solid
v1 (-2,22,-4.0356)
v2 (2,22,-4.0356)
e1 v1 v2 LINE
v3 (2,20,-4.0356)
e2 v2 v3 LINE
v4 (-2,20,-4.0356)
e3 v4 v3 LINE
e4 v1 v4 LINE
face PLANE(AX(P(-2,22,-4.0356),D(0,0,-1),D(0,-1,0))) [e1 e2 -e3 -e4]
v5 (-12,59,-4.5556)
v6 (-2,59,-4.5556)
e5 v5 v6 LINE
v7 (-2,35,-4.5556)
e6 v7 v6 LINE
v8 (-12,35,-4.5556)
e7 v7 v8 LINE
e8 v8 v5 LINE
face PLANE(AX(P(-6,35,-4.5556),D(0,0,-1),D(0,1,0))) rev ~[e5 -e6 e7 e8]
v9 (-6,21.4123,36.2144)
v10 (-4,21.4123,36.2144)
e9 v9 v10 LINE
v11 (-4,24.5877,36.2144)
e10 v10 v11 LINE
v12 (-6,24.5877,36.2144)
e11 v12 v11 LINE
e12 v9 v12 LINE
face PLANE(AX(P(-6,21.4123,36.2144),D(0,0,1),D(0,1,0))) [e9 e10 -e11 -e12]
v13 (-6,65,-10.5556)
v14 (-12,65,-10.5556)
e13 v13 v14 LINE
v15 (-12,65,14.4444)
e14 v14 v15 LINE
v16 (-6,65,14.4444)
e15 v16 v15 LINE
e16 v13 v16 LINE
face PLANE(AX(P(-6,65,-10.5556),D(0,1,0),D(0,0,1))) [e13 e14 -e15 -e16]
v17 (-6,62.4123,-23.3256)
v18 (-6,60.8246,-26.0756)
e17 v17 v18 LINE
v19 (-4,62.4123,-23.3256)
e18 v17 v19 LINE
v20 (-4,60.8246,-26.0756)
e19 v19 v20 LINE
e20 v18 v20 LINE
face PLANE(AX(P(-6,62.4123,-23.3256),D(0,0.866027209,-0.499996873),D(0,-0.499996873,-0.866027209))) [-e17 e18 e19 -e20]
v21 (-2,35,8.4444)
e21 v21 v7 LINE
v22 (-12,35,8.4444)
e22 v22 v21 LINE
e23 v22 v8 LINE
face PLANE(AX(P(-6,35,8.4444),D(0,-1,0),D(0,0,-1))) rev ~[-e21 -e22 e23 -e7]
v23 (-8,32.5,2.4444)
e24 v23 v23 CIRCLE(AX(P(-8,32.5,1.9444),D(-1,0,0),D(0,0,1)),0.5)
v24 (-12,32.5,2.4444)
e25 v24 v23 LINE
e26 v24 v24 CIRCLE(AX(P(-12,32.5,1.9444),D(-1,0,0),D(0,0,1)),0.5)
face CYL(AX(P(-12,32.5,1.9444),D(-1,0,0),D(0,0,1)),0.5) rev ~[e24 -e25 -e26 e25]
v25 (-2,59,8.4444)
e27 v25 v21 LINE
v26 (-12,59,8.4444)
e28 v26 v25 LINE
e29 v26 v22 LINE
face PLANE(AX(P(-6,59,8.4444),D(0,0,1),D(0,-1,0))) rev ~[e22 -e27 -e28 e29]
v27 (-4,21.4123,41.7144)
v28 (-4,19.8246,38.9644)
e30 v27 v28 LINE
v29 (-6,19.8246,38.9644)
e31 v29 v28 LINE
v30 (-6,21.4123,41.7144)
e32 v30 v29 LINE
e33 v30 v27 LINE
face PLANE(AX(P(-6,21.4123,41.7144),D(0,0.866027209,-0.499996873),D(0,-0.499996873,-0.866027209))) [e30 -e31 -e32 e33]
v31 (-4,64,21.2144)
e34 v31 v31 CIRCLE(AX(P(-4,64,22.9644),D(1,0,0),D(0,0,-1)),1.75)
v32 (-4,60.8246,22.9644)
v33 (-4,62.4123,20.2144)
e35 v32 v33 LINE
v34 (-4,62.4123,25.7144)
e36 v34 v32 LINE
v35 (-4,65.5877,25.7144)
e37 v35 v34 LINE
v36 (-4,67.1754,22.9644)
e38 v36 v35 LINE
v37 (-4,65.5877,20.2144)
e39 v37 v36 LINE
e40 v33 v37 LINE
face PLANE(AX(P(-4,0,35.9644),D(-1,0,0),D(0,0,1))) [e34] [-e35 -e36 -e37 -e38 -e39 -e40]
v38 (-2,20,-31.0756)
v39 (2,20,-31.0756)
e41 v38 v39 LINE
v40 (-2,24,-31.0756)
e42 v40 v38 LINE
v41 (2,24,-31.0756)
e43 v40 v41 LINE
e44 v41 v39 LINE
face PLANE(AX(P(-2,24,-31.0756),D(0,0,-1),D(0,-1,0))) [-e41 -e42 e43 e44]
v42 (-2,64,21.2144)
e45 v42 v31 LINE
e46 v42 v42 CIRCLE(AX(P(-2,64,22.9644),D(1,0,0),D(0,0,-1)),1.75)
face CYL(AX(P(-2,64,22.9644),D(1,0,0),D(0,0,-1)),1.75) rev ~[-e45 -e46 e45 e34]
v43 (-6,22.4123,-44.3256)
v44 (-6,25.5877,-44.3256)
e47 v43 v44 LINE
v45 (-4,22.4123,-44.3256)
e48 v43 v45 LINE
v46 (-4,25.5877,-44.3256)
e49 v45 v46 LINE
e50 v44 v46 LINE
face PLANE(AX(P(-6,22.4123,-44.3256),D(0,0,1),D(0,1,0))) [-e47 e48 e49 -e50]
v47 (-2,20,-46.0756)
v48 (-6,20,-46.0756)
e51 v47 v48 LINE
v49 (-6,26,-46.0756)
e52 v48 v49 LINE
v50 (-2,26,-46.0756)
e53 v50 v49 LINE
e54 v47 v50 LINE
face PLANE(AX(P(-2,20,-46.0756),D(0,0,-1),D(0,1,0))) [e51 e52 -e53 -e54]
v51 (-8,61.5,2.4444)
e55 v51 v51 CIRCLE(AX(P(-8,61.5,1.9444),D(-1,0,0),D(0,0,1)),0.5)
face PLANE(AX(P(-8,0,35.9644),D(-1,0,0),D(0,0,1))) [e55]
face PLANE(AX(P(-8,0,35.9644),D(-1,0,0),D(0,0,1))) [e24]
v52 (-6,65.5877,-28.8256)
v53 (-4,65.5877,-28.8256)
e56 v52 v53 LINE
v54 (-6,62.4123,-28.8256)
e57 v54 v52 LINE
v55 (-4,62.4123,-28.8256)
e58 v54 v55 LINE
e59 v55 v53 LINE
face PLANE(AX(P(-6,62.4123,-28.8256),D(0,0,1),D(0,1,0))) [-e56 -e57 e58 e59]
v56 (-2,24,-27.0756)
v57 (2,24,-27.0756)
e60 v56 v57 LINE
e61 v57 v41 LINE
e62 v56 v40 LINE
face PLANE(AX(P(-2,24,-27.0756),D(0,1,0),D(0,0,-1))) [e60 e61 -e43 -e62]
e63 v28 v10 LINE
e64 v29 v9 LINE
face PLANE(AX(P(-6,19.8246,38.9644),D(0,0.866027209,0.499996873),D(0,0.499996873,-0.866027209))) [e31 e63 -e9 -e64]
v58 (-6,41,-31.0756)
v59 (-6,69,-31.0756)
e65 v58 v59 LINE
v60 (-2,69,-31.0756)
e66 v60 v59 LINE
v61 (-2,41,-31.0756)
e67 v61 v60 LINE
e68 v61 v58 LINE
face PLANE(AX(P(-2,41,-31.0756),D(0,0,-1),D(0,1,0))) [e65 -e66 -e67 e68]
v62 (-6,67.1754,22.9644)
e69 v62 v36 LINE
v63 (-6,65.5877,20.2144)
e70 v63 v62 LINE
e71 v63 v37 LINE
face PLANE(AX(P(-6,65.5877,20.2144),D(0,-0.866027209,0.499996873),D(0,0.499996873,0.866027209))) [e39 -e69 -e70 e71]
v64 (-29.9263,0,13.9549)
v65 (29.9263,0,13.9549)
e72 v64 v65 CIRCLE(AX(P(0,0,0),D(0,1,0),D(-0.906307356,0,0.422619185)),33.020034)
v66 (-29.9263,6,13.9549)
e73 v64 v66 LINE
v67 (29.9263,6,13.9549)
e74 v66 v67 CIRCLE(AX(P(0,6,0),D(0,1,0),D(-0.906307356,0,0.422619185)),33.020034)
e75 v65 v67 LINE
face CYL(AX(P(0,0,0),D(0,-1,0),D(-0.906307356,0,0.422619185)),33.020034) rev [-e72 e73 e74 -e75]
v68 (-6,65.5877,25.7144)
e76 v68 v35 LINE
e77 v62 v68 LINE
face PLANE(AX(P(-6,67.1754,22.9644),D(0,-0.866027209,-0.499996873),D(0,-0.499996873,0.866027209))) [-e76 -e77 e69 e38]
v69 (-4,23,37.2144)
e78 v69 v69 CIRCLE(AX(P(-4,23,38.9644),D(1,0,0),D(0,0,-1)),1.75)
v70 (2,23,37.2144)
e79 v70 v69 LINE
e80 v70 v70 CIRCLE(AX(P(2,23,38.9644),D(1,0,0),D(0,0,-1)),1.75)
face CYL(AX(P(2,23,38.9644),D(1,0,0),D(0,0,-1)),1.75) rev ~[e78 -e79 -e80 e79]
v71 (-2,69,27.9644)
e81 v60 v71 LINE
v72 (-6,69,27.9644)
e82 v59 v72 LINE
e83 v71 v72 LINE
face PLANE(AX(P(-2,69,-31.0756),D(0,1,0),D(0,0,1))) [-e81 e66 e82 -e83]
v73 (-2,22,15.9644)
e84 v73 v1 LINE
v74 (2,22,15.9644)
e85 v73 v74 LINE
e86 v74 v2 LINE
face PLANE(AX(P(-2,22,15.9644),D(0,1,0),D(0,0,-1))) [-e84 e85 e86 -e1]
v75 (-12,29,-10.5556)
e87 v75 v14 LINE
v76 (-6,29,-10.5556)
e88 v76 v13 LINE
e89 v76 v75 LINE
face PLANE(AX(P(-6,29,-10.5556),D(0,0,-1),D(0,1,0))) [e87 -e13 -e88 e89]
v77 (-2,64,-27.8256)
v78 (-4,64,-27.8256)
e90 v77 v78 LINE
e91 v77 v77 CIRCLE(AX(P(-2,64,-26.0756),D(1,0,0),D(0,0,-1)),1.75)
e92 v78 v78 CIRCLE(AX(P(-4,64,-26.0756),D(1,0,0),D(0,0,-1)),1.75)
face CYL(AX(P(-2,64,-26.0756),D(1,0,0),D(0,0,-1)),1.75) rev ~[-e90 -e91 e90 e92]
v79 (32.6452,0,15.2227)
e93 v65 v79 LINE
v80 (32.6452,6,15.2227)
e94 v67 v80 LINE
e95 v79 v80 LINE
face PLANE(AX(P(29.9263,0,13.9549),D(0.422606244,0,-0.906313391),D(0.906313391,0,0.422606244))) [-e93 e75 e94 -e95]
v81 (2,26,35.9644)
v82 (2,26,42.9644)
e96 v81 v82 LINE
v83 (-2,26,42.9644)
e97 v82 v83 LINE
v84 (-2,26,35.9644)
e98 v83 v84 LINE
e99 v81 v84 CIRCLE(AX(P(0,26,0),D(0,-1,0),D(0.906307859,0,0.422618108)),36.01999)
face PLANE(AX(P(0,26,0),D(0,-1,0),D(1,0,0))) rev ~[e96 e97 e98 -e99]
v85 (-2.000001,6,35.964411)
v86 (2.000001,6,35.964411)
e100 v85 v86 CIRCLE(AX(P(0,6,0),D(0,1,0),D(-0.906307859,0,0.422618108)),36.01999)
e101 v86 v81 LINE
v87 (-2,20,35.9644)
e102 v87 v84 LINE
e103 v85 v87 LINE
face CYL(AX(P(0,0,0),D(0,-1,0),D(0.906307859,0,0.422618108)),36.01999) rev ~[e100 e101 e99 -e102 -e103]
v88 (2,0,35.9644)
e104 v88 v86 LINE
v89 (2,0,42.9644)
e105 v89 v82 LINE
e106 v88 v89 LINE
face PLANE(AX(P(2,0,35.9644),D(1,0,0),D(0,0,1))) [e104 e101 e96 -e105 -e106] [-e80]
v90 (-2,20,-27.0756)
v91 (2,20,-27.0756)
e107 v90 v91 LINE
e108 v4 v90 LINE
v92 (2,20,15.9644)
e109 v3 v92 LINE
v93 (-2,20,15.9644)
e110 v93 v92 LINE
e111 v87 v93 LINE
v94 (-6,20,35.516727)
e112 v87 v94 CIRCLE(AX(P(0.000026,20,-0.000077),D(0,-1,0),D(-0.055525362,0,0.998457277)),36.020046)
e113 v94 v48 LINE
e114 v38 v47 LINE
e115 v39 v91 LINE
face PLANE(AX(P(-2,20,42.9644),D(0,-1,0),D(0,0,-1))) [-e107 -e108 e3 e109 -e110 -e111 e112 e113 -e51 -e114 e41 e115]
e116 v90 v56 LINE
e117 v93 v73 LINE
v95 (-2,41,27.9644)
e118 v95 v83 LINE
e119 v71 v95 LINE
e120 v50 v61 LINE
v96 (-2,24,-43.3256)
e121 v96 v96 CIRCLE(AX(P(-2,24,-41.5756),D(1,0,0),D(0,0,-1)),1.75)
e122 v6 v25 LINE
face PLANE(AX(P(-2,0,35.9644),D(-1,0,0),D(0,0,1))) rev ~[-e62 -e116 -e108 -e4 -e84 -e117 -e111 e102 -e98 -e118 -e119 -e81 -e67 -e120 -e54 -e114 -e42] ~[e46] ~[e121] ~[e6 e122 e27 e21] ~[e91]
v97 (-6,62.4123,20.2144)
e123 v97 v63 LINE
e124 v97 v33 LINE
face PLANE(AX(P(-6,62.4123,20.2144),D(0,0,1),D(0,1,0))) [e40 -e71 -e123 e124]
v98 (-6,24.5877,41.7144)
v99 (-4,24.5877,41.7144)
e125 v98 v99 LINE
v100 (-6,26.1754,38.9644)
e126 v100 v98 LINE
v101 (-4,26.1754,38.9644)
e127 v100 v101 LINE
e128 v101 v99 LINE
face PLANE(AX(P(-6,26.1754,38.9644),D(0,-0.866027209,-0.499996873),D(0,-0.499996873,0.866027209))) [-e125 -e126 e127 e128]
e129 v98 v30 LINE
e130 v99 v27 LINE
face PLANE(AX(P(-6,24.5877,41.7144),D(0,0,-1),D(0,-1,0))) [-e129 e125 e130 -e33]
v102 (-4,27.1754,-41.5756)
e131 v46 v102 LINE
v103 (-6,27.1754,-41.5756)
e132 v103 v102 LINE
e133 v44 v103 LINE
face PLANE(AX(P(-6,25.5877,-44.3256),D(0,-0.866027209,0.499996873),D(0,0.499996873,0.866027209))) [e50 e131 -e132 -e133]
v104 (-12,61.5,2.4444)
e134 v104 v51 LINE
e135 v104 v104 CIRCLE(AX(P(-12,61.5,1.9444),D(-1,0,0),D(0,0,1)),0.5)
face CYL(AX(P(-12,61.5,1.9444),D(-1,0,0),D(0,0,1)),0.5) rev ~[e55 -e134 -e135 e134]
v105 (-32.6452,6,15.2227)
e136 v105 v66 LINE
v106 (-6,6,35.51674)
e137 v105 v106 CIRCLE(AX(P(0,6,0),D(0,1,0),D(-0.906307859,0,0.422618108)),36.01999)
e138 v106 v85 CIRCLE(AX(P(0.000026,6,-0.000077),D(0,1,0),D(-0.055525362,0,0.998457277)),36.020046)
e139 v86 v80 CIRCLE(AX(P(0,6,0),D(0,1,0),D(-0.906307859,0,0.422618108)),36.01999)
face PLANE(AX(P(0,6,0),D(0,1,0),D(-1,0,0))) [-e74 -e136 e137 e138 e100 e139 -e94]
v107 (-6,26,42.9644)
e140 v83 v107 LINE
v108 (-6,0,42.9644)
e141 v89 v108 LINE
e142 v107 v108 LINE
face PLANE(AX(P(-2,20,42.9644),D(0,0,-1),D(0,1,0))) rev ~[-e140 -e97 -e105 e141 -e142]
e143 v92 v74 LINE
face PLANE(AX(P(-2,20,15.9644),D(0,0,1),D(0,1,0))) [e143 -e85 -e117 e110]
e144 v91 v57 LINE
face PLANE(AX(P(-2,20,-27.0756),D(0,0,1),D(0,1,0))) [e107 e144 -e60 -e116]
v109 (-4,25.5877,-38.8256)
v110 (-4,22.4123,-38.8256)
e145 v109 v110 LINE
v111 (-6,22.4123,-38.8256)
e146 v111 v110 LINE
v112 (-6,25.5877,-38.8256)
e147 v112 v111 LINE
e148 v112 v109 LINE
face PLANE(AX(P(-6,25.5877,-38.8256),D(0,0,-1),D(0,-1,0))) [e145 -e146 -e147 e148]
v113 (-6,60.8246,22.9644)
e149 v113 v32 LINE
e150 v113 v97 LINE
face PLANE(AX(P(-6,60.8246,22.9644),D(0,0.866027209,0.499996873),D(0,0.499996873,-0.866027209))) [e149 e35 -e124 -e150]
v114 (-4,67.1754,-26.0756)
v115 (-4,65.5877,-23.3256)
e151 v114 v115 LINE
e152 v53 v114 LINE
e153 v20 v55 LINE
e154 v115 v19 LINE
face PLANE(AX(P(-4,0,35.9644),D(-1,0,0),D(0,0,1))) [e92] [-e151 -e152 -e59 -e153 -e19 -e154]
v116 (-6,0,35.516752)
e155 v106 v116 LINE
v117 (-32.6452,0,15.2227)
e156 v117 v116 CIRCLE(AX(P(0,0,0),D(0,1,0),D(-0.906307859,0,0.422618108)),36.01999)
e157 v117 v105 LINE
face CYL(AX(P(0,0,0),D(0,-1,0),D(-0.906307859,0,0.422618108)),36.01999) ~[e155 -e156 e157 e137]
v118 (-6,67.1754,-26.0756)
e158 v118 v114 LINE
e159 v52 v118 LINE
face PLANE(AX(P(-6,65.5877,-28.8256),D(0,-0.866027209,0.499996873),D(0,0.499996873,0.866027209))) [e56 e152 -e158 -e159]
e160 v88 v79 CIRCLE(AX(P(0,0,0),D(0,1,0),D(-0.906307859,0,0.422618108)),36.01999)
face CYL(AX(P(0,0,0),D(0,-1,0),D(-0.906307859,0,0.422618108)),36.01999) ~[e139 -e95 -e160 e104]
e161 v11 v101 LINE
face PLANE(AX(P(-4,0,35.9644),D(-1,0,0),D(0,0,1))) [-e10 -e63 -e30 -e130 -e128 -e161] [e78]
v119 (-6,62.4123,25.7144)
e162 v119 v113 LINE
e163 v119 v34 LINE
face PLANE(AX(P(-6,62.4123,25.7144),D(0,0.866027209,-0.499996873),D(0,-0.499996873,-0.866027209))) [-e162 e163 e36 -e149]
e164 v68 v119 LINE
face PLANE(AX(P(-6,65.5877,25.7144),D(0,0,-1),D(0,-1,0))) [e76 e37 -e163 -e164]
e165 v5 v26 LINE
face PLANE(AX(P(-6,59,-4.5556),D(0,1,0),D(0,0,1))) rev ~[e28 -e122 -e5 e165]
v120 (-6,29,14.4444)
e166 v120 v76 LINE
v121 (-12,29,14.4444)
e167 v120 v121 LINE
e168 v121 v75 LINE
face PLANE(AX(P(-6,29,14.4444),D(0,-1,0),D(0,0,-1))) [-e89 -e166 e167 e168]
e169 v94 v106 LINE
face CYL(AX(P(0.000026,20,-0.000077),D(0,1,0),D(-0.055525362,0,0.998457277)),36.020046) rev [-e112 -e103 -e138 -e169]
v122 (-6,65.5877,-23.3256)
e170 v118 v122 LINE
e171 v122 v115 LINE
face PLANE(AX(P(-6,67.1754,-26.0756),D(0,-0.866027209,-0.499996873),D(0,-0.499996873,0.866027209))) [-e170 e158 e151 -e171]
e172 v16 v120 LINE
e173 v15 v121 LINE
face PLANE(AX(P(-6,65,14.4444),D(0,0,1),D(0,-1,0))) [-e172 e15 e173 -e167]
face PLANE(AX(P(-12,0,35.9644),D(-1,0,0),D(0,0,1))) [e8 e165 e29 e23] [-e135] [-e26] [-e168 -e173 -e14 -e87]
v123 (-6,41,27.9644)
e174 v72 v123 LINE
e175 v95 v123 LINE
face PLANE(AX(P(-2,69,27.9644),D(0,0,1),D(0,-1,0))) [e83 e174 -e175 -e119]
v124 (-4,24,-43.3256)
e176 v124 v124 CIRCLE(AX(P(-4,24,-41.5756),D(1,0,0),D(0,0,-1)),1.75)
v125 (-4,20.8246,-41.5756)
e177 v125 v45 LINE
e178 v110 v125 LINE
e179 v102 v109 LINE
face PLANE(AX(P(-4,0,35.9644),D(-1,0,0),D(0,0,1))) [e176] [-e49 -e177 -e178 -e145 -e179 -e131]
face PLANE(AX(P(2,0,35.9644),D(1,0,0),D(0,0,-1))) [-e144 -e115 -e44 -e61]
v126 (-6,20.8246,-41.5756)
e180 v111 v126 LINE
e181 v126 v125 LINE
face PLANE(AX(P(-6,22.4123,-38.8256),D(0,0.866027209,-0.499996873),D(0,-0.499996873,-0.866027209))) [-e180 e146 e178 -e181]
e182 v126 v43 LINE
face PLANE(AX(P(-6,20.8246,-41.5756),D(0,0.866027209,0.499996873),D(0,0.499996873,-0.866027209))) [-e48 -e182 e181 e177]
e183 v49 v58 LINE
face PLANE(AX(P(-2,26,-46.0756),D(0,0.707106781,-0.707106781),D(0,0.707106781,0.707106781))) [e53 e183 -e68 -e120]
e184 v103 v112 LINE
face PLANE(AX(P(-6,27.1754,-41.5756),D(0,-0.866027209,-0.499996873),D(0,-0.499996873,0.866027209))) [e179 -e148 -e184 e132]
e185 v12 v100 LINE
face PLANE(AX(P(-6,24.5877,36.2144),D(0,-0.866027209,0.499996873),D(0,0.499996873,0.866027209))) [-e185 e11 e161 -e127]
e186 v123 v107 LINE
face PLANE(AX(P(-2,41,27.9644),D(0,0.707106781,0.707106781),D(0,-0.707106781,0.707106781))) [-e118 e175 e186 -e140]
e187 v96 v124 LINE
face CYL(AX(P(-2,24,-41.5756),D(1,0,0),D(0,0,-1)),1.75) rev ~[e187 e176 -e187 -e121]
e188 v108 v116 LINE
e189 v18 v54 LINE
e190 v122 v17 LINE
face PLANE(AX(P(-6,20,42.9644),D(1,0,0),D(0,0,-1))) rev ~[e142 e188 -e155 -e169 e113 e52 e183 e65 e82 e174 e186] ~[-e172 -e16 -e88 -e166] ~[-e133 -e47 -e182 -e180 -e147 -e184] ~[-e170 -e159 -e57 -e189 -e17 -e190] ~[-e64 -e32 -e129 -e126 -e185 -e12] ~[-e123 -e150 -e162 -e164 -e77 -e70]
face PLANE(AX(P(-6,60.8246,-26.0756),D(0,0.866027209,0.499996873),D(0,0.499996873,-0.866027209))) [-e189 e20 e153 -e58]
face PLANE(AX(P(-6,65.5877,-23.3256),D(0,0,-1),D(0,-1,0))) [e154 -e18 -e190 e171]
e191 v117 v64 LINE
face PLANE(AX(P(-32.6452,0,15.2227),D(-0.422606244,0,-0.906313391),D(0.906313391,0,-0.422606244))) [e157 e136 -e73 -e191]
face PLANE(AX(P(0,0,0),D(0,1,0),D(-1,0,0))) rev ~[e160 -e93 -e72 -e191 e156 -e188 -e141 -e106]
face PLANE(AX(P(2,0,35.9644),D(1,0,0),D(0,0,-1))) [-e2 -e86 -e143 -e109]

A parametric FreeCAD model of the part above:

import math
import FreeCAD as App
import Part
import Sketcher
Q = App.Units.Quantity

doc = App.newDocument("Part")
body = doc.addObject("PartDesign::Body", "Body")

sketch1 = body.newObject("Sketcher::SketchObject", "Sketch")
sketch1.AttachmentSupport = (doc.getObject("XZ_Plane"), [""])
sketch1.MapMode = "FlatFace"
sketch1.addGeometry([
    Part.LineSegment(App.Vector(-29.9, 14, 0), App.Vector(-32.6, 15.2, 0)),
    Part.ArcOfCircle(Part.Circle(App.Vector(0, 0, 0), App.Vector(0, 0, 1), 36), math.radians(25), math.radians(155)),
    Part.LineSegment(App.Vector(32.6, 15.2, 0), App.Vector(29.9, 14, 0)),
    Part.ArcOfCircle(Part.Circle(App.Vector(0, 0, 0), App.Vector(0, 0, 1), 33), math.radians(25), math.radians(155)),
], False)
sketch1.addConstraint([
    Sketcher.Constraint("Coincident", 0, 2, 1, 2),
    Sketcher.Constraint("Coincident", 1, 1, 2, 1),
    Sketcher.Constraint("Coincident", 2, 2, 3, 1),
    Sketcher.Constraint("Coincident", 3, 2, 0, 1),
    Sketcher.Constraint("Coincident", 1, 3, -1, 1),
    Sketcher.Constraint("Coincident", 3, 3, -1, 1),
    Sketcher.Constraint("Horizontal", 0, 2, 1, 1),
    Sketcher.Constraint("Horizontal", 2, 2, 3, 2),
    Sketcher.Constraint("Angle", 0, Q("155.0008 deg")),
    Sketcher.Constraint("Radius", 1, 36.02),
    Sketcher.Constraint("Radius", 3, 33.02),
    Sketcher.Constraint("DistanceY", -1, 1, 2, 2, 13.955),
])
pad1 = body.newObject("PartDesign::Pad", "Pad")
pad1.Profile = sketch1
pad1.Length = 6
pad1.Reversed = True

sketch2 = body.newObject("Sketcher::SketchObject", "Sketch001")
sketch2.AttachmentSupport = (doc.getObject("XZ_Plane"), [""])
sketch2.MapMode = "FlatFace"
sketch2.addGeometry([
    Part.ArcOfCircle(Part.Circle(App.Vector(0, 0, 0), App.Vector(0, 0, 1), 36), math.radians(86.82), math.radians(93.18)),
    Part.LineSegment(App.Vector(2, 36, 0), App.Vector(2, 43, 0)),
    Part.LineSegment(App.Vector(2, 43, 0), App.Vector(-2, 43, 0)),
    Part.LineSegment(App.Vector(-2, 43, 0), App.Vector(-2, 36, 0)),
], False)
sketch2.addConstraint([
    Sketcher.Constraint("Coincident", 0, 1, 1, 1),
    Sketcher.Constraint("Coincident", 1, 2, 2, 1),
    Sketcher.Constraint("Coincident", 2, 2, 3, 1),
    Sketcher.Constraint("Coincident", 3, 2, 0, 2),
    Sketcher.Constraint("Vertical", 1),
    Sketcher.Constraint("Horizontal", 2),
    Sketcher.Constraint("Vertical", 3),
    Sketcher.Constraint("Coincident", 0, 3, -1, 1),
    Sketcher.Constraint("Horizontal", 0, 1, 3, 2),
    Sketcher.Constraint("DistanceY", 1, 1, 1, 2, 7.0),
    Sketcher.Constraint("DistanceX", -1, 1, 0, 1, 2.0),
    Sketcher.Constraint("Radius", 0, 36.02),
])
pad2 = body.newObject("PartDesign::Pad", "Pad001")
pad2.Profile = sketch2
pad2.Length = 26
pad2.Reversed = True

sketch3 = body.newObject("Sketcher::SketchObject", "Sketch002")
sketch3.AttachmentSupport = (doc.getObject("YZ_Plane"), [""])
sketch3.MapMode = "FlatFace"
sketch3.AttachmentOffset = App.Placement(App.Vector(0, 0, -2), App.Rotation())
sketch3.addGeometry([
    Part.LineSegment(App.Vector(20, -46, 0), App.Vector(20, 43, 0)),
    Part.LineSegment(App.Vector(20, 43, 0), App.Vector(26, 43, 0)),
    Part.LineSegment(App.Vector(26, 43, 0), App.Vector(41, 28, 0)),
    Part.LineSegment(App.Vector(41, 28, 0), App.Vector(69, 28, 0)),
    Part.LineSegment(App.Vector(69, 28, 0), App.Vector(69, -31, 0)),
    Part.LineSegment(App.Vector(69, -31, 0), App.Vector(41, -31, 0)),
    Part.LineSegment(App.Vector(41, -31, 0), App.Vector(26, -46, 0)),
    Part.LineSegment(App.Vector(26, -46, 0), App.Vector(20, -46, 0)),
    Part.LineSegment(App.Vector(35, -5, 0), App.Vector(59, -5, 0)),
    Part.LineSegment(App.Vector(59, -5, 0), App.Vector(59, 8, 0)),
    Part.LineSegment(App.Vector(59, 8, 0), App.Vector(35, 8, 0)),
    Part.LineSegment(App.Vector(35, 8, 0), App.Vector(35, -5, 0)),
], False)
sketch3.addConstraint([
    Sketcher.Constraint("Coincident", 0, 2, 1, 1),
    Sketcher.Constraint("Coincident", 1, 2, 2, 1),
    Sketcher.Constraint("Coincident", 2, 2, 3, 1),
    Sketcher.Constraint("Coincident", 3, 2, 4, 1),
    Sketcher.Constraint("Coincident", 4, 2, 5, 1),
    Sketcher.Constraint("Coincident", 5, 2, 6, 1),
    Sketcher.Constraint("Coincident", 6, 2, 7, 1),
    Sketcher.Constraint("Coincident", 7, 2, 0, 1),
    Sketcher.Constraint("Coincident", 8, 2, 9, 1),
    Sketcher.Constraint("Coincident", 9, 2, 10, 1),
    Sketcher.Constraint("Coincident", 10, 2, 11, 1),
    Sketcher.Constraint("Coincident", 11, 2, 8, 1),
    Sketcher.Constraint("Vertical", 0),
    Sketcher.Constraint("Horizontal", 1),
    Sketcher.Constraint("Horizontal", 3),
    Sketcher.Constraint("Vertical", 4),
    Sketcher.Constraint("Horizontal", 5),
    Sketcher.Constraint("Horizontal", 7),
    Sketcher.Constraint("Horizontal", 8),
    Sketcher.Constraint("Vertical", 9),
    Sketcher.Constraint("Horizontal", 10),
    Sketcher.Constraint("Vertical", 11),
    Sketcher.Constraint("Perpendicular", 2, 6),
    Sketcher.Constraint("Vertical", 2, 2, 5, 2),
    Sketcher.Constraint("Vertical", 1, 2, 6, 2),
    Sketcher.Constraint("Equal", 2, 6),
    Sketcher.Constraint("DistanceX", 1, 1, 1, 2, 6.0),
    Sketcher.Constraint("DistanceX", 8, 1, 8, 2, 24.0),
    Sketcher.Constraint("DistanceY", 9, 1, 9, 2, 13.0),
    Sketcher.Constraint("DistanceX", -1, 1, 0, 2, 20.0),
    Sketcher.Constraint("DistanceX", 1, 2, 2, 2, 15.0),
    Sketcher.Constraint("DistanceX", 8, 2, 4, 2, 10.0),
    Sketcher.Constraint("DistanceX", 10, 2, 2, 2, 6.0),
    Sketcher.Constraint("DistanceY", 0, 1, 0, 2, 89.04),
    Sketcher.Constraint("DistanceY", 9, 2, 3, 2, 19.52),
    Sketcher.Constraint("DistanceY", -1, 1, 0, 2, 42.9644),
])
pad3 = body.newObject("PartDesign::Pad", "Pad002")
pad3.Profile = sketch3
pad3.Length = 4
pad3.Reversed = True

sketch4 = body.newObject("Sketcher::SketchObject", "Sketch003")
sketch4.AttachmentSupport = (doc.getObject("YZ_Plane"), [""])
sketch4.MapMode = "FlatFace"
sketch4.AttachmentOffset = App.Placement(App.Vector(0, 0, -6), App.Rotation())
sketch4.addGeometry([
    Part.LineSegment(App.Vector(65, -11, 0), App.Vector(29, -11, 0)),
    Part.LineSegment(App.Vector(29, -11, 0), App.Vector(29, 14, 0)),
    Part.LineSegment(App.Vector(29, 14, 0), App.Vector(65, 14, 0)),
    Part.LineSegment(App.Vector(65, 14, 0), App.Vector(65, -11, 0)),
    Part.LineSegment(App.Vector(35, 8, 0), App.Vector(35, -5, 0)),
    Part.LineSegment(App.Vector(35, -5, 0), App.Vector(59, -5, 0)),
    Part.LineSegment(App.Vector(59, -5, 0), App.Vector(59, 8, 0)),
    Part.LineSegment(App.Vector(59, 8, 0), App.Vector(35, 8, 0)),
], False)
sketch4.addConstraint([
    Sketcher.Constraint("Coincident", 0, 2, 1, 1),
    Sketcher.Constraint("Coincident", 1, 2, 2, 1),
    Sketcher.Constraint("Coincident", 2, 2, 3, 1),
    Sketcher.Constraint("Coincident", 3, 2, 0, 1),
    Sketcher.Constraint("Coincident", 4, 2, 5, 1),
    Sketcher.Constraint("Coincident", 5, 2, 6, 1),
    Sketcher.Constraint("Coincident", 6, 2, 7, 1),
    Sketcher.Constraint("Coincident", 7, 2, 4, 1),
    Sketcher.Constraint("Horizontal", 0),
    Sketcher.Constraint("Vertical", 1),
    Sketcher.Constraint("Horizontal", 2),
    Sketcher.Constraint("Vertical", 3),
    Sketcher.Constraint("Vertical", 4),
    Sketcher.Constraint("Horizontal", 5),
    Sketcher.Constraint("Vertical", 6),
    Sketcher.Constraint("Horizontal", 7),
    Sketcher.Constraint("DistanceX", 0, 2, 4, 2, 6.0),
    Sketcher.Constraint("DistanceY", 0, 2, 4, 2, 6.0),
    Sketcher.Constraint("DistanceX", 5, 2, 3, 2, 6.0),
    Sketcher.Constraint("DistanceY", 6, 2, 2, 2, 6.0),
    Sketcher.Constraint("DistanceX", 0, 2, 0, 1, 36.0),
    Sketcher.Constraint("DistanceY", 1, 1, 1, 2, 25.0),
    Sketcher.Constraint("DistanceX", -1, 1, 0, 2, 29.0),
    Sketcher.Constraint("DistanceY", 0, 2, -1, 1, 10.5556),
])
pad4 = body.newObject("PartDesign::Pad", "Pad003")
pad4.Profile = sketch4
pad4.Length = 6
pad4.Reversed = True

sketch5 = body.newObject("Sketcher::SketchObject", "Sketch004")
sketch5.AttachmentSupport = (doc.getObject("XZ_Plane"), [""])
sketch5.MapMode = "FlatFace"
sketch5.AttachmentOffset = App.Placement(App.Vector(0, 0, -20), App.Rotation())
sketch5.addGeometry([
    Part.ArcOfCircle(Part.Circle(App.Vector(0, 0, 0), App.Vector(0, 0, 1), 36), math.radians(93.18), math.radians(99.59)),
    Part.LineSegment(App.Vector(-2, 36, 0), App.Vector(-2, 43, 0)),
    Part.LineSegment(App.Vector(-2, 43, 0), App.Vector(-6, 43, 0)),
    Part.LineSegment(App.Vector(-6, 43, 0), App.Vector(-6, 35.5, 0)),
], False)
sketch5.addConstraint([
    Sketcher.Constraint("Coincident", 0, 1, 1, 1),
    Sketcher.Constraint("Coincident", 1, 2, 2, 1),
    Sketcher.Constraint("Coincident", 2, 2, 3, 1),
    Sketcher.Constraint("Coincident", 3, 2, 0, 2),
    Sketcher.Constraint("Vertical", 1),
    Sketcher.Constraint("Horizontal", 2),
    Sketcher.Constraint("Vertical", 3),
    Sketcher.Constraint("Coincident", 0, 3, -1, 1),
    Sketcher.Constraint("DistanceX", 2, 2, 2, 1, 4.0),
    Sketcher.Constraint("DistanceY", 1, 1, 1, 2, 7.0),
    Sketcher.Constraint("Radius", 0, 36.02),
    Sketcher.Constraint("DistanceX", 0, 1, -1, 1, 2.0),
])
pad5 = body.newObject("PartDesign::Pad", "Pad004")
pad5.Profile = sketch5
pad5.Length = 20

sketch6 = body.newObject("Sketcher::SketchObject", "Sketch005")
sketch6.AttachmentSupport = (doc.getObject("YZ_Plane"), [""])
sketch6.MapMode = "FlatFace"
sketch6.AttachmentOffset = App.Placement(App.Vector(0, 0, -2), App.Rotation())
sketch6.addGeometry([
    Part.Circle(App.Vector(24, -41.6, 0), App.Vector(0, 0, 1), 1.8),
    Part.Circle(App.Vector(64, -26.1, 0), App.Vector(0, 0, 1), 1.8),
    Part.Circle(App.Vector(64, 23, 0), App.Vector(0, 0, 1), 1.8),
], False)
sketch6.addConstraint([
    Sketcher.Constraint("Equal", 0, 1),
    Sketcher.Constraint("Equal", 1, 2),
    Sketcher.Constraint("Vertical", 1, 3, 2, 3),
    Sketcher.Constraint("Diameter", 0, 3.5),
    Sketcher.Constraint("DistanceX", -1, 1, 0, 3, 24.0),
    Sketcher.Constraint("DistanceX", -1, 1, 1, 3, 64.0),
    Sketcher.Constraint("DistanceY", 0, 3, 1, 3, 15.5),
    Sketcher.Constraint("DistanceY", 1, 3, 2, 3, 49.04),
    Sketcher.Constraint("DistanceY", 0, 3, -1, 1, 41.5756),
])
pocket1 = body.newObject("PartDesign::Pocket", "Pocket")
pocket1.Profile = sketch6
pocket1.Length = 6

sketch7 = body.newObject("Sketcher::SketchObject", "Sketch006")
sketch7.AttachmentSupport = (doc.getObject("YZ_Plane"), [""])
sketch7.MapMode = "FlatFace"
sketch7.AttachmentOffset = App.Placement(App.Vector(0, 0, 2), App.Rotation())
sketch7.addGeometry(Part.Circle(App.Vector(23, 39, 0), App.Vector(0, 0, 1), 1.8), False)
sketch7.addConstraint([
    Sketcher.Constraint("Diameter", 0, 3.5),
    Sketcher.Constraint("DistanceX", -1, 1, 0, 3, 23.0),
    Sketcher.Constraint("DistanceY", -1, 1, 0, 3, 38.9644),
])
pocket2 = body.newObject("PartDesign::Pocket", "Pocket001")
pocket2.Profile = sketch7
pocket2.Type = "ThroughAll"

sketch8 = body.newObject("Sketcher::SketchObject", "Sketch007")
sketch8.AttachmentSupport = (doc.getObject("YZ_Plane"), [""])
sketch8.MapMode = "FlatFace"
sketch8.AttachmentOffset = App.Placement(App.Vector(0, 0, -2), App.Rotation())
sketch8.addGeometry([
    Part.LineSegment(App.Vector(20, 16, 0), App.Vector(20, -4, 0)),
    Part.LineSegment(App.Vector(20, -4, 0), App.Vector(22, -4, 0)),
    Part.LineSegment(App.Vector(22, -4, 0), App.Vector(22, 16, 0)),
    Part.LineSegment(App.Vector(22, 16, 0), App.Vector(20, 16, 0)),
    Part.LineSegment(App.Vector(20, -27.1, 0), App.Vector(20, -31.1, 0)),
    Part.LineSegment(App.Vector(20, -31.1, 0), App.Vector(24, -31.1, 0)),
    Part.LineSegment(App.Vector(24, -31.1, 0), App.Vector(24, -27.1, 0)),
    Part.LineSegment(App.Vector(24, -27.1, 0), App.Vector(20, -27.1, 0)),
], False)
sketch8.addConstraint([
    Sketcher.Constraint("Coincident", 0, 2, 1, 1),
    Sketcher.Constraint("Coincident", 1, 2, 2, 1),
    Sketcher.Constraint("Coincident", 2, 2, 3, 1),
    Sketcher.Constraint("Coincident", 3, 2, 0, 1),
    Sketcher.Constraint("Coincident", 4, 2, 5, 1),
    Sketcher.Constraint("Coincident", 5, 2, 6, 1),
    Sketcher.Constraint("Coincident", 6, 2, 7, 1),
    Sketcher.Constraint("Coincident", 7, 2, 4, 1),
    Sketcher.Constraint("Vertical", 0),
    Sketcher.Constraint("Horizontal", 1),
    Sketcher.Constraint("Vertical", 2),
    Sketcher.Constraint("Horizontal", 3),
    Sketcher.Constraint("Vertical", 4),
    Sketcher.Constraint("Horizontal", 5),
    Sketcher.Constraint("Vertical", 6),
    Sketcher.Constraint("Horizontal", 7),
    Sketcher.Constraint("Vertical", 3, 2, 4, 2),
    Sketcher.Constraint("Equal", 7, 4),
    Sketcher.Constraint("DistanceX", 1, 1, 1, 2, 2.0),
    Sketcher.Constraint("DistanceX", 5, 1, 5, 2, 4.0),
    Sketcher.Constraint("DistanceY", 0, 2, 0, 1, 20.0),
    Sketcher.Constraint("DistanceX", -1, 1, 0, 2, 20.0),
    Sketcher.Constraint("DistanceY", 4, 2, 0, 2, 27.04),
    Sketcher.Constraint("DistanceY", 0, 2, -1, 1, 4.0356),
])
pad6 = body.newObject("PartDesign::Pad", "Pad005")
pad6.Profile = sketch8
pad6.Length = 4

sketch9 = body.newObject("Sketcher::SketchObject", "Sketch008")
sketch9.AttachmentSupport = (doc.getObject("YZ_Plane"), [""])
sketch9.MapMode = "FlatFace"
sketch9.AttachmentOffset = App.Placement(App.Vector(0, 0, -6), App.Rotation())
sketch9.addGeometry([
    Part.LineSegment(App.Vector(26.2, 39, 0), App.Vector(24.6, 36.2, 0)),
    Part.LineSegment(App.Vector(24.6, 36.2, 0), App.Vector(21.4, 36.2, 0)),
    Part.LineSegment(App.Vector(21.4, 36.2, 0), App.Vector(19.8, 39, 0)),
    Part.LineSegment(App.Vector(19.8, 39, 0), App.Vector(21.4, 41.7, 0)),
    Part.LineSegment(App.Vector(21.4, 41.7, 0), App.Vector(24.6, 41.7, 0)),
    Part.LineSegment(App.Vector(24.6, 41.7, 0), App.Vector(26.2, 39, 0)),
    Part.LineSegment(App.Vector(62.4, -28.8, 0), App.Vector(60.8, -26.1, 0)),
    Part.LineSegment(App.Vector(60.8, -26.1, 0), App.Vector(62.4, -23.3, 0)),
    Part.LineSegment(App.Vector(62.4, -23.3, 0), App.Vector(65.6, -23.3, 0)),
    Part.LineSegment(App.Vector(65.6, -23.3, 0), App.Vector(67.2, -26.1, 0)),
    Part.LineSegment(App.Vector(67.2, -26.1, 0), App.Vector(65.6, -28.8, 0)),
    Part.LineSegment(App.Vector(65.6, -28.8, 0), App.Vector(62.4, -28.8, 0)),
    Part.Circle(App.Vector(64, -26.1, 0), App.Vector(0, 0, 1), 1.8),
    Part.LineSegment(App.Vector(62.4, 20.2, 0), App.Vector(60.8, 23, 0)),
    Part.LineSegment(App.Vector(60.8, 23, 0), App.Vector(62.4, 25.7, 0)),
    Part.LineSegment(App.Vector(62.4, 25.7, 0), App.Vector(65.6, 25.7, 0)),
    Part.LineSegment(App.Vector(65.6, 25.7, 0), App.Vector(67.2, 23, 0)),
    Part.LineSegment(App.Vector(67.2, 23, 0), App.Vector(65.6, 20.2, 0)),
    Part.LineSegment(App.Vector(65.6, 20.2, 0), App.Vector(62.4, 20.2, 0)),
    Part.Circle(App.Vector(64, 23, 0), App.Vector(0, 0, 1), 1.8),
    Part.LineSegment(App.Vector(22.4, -38.8, 0), App.Vector(25.6, -38.8, 0)),
    Part.LineSegment(App.Vector(25.6, -38.8, 0), App.Vector(27.2, -41.6, 0)),
    Part.LineSegment(App.Vector(27.2, -41.6, 0), App.Vector(25.6, -44.3, 0)),
    Part.LineSegment(App.Vector(25.6, -44.3, 0), App.Vector(22.4, -44.3, 0)),
    Part.LineSegment(App.Vector(22.4, -44.3, 0), App.Vector(20.8, -41.6, 0)),
    Part.LineSegment(App.Vector(20.8, -41.6, 0), App.Vector(22.4, -38.8, 0)),
    Part.Circle(App.Vector(24, -41.6, 0), App.Vector(0, 0, 1), 1.8),
], False)
sketch9.addConstraint([
    Sketcher.Constraint("Coincident", 0, 2, 1, 1),
    Sketcher.Constraint("Coincident", 1, 2, 2, 1),
    Sketcher.Constraint("Coincident", 2, 2, 3, 1),
    Sketcher.Constraint("Coincident", 3, 2, 4, 1),
    Sketcher.Constraint("Coincident", 4, 2, 5, 1),
    Sketcher.Constraint("Coincident", 5, 2, 0, 1),
    Sketcher.Constraint("Coincident", 6, 2, 7, 1),
    Sketcher.Constraint("Coincident", 7, 2, 8, 1),
    Sketcher.Constraint("Coincident", 8, 2, 9, 1),
    Sketcher.Constraint("Coincident", 9, 2, 10, 1),
    Sketcher.Constraint("Coincident", 10, 2, 11, 1),
    Sketcher.Constraint("Coincident", 11, 2, 6, 1),
    Sketcher.Constraint("Coincident", 13, 2, 14, 1),
    Sketcher.Constraint("Coincident", 14, 2, 15, 1),
    Sketcher.Constraint("Coincident", 15, 2, 16, 1),
    Sketcher.Constraint("Coincident", 16, 2, 17, 1),
    Sketcher.Constraint("Coincident", 17, 2, 18, 1),
    Sketcher.Constraint("Coincident", 18, 2, 13, 1),
    Sketcher.Constraint("Coincident", 20, 2, 21, 1),
    Sketcher.Constraint("Coincident", 21, 2, 22, 1),
    Sketcher.Constraint("Coincident", 22, 2, 23, 1),
    Sketcher.Constraint("Coincident", 23, 2, 24, 1),
    Sketcher.Constraint("Coincident", 24, 2, 25, 1),
    Sketcher.Constraint("Coincident", 25, 2, 20, 1),
    Sketcher.Constraint("Horizontal", 1),
    Sketcher.Constraint("Horizontal", 4),
    Sketcher.Constraint("Horizontal", 8),
    Sketcher.Constraint("Horizontal", 11),
    Sketcher.Constraint("Horizontal", 15),
    Sketcher.Constraint("Horizontal", 18),
    Sketcher.Constraint("Horizontal", 20),
    Sketcher.Constraint("Horizontal", 23),
    Sketcher.Constraint("Equal", 12, 19),
    Sketcher.Constraint("Equal", 19, 26),
    Sketcher.Constraint("Parallel", 0, 3),
    Sketcher.Constraint("Parallel", 2, 5),
    Sketcher.Constraint("Parallel", 5, 6),
    Sketcher.Constraint("Parallel", 3, 7),
    Sketcher.Constraint("Parallel", 6, 9),
    Sketcher.Constraint("Parallel", 7, 10),
    Sketcher.Constraint("Parallel", 9, 13),
    Sketcher.Constraint("Parallel", 10, 14),
    Sketcher.Constraint("Parallel", 13, 16),
    Sketcher.Constraint("Parallel", 14, 17),
    Sketcher.Constraint("Parallel", 16, 21),
    Sketcher.Constraint("Parallel", 17, 22),
    Sketcher.Constraint("Parallel", 21, 24),
    Sketcher.Constraint("Parallel", 22, 25),
    Sketcher.Constraint("Horizontal", 2, 2, 5, 2),
    Sketcher.Constraint("Horizontal", 12, 3, 6, 2),
    Sketcher.Constraint("Horizontal", 6, 2, 9, 2),
    Sketcher.Constraint("Horizontal", 19, 3, 13, 2),
    Sketcher.Constraint("Horizontal", 13, 2, 16, 2),
    Sketcher.Constraint("Horizontal", 26, 3, 21, 2),
    Sketcher.Constraint("Horizontal", 21, 2, 24, 2),
    Sketcher.Constraint("Vertical", 12, 3, 19, 3),
    Sketcher.Constraint("Vertical", 1, 2, 3, 2),
    Sketcher.Constraint("Vertical", 0, 2, 4, 2),
    Sketcher.Constraint("Vertical", 8, 2, 10, 2),
    Sketcher.Constraint("Vertical", 6, 2, 13, 2),
    Sketcher.Constraint("Vertical", 11, 2, 14, 2),
    Sketcher.Constraint("Vertical", 10, 2, 15, 2),
    Sketcher.Constraint("Vertical", 15, 2, 17, 2),
    Sketcher.Constraint("Vertical", 20, 2, 22, 2),
    Sketcher.Constraint("Equal", 4, 8),
    Sketcher.Constraint("Equal", 18, 20),
    Sketcher.Constraint("Equal", 5, 6),
    Sketcher.Constraint("Equal", 17, 21),
    Sketcher.Constraint("Diameter", 12, 3.5),
    Sketcher.Constraint("DistanceY", 1, 2, 3, 2, 5.5),
    Sketcher.Constraint("Angle", 0, Q("-119.9998 deg")),
    Sketcher.Constraint("DistanceX", -1, 1, 12, 3, 64.0),
    Sketcher.Constraint("DistanceX", -1, 1, 26, 3, 24.0),
    Sketcher.Constraint("DistanceY", 19, 3, 2, 2, 16.0),
    Sketcher.Constraint("DistanceX", 0, 2, 15, 2, 41.0),
    Sketcher.Constraint("DistanceY", 20, 2, 11, 2, 10.0),
    Sketcher.Constraint("DistanceY", 12, 3, 19, 3, 49.04),
    Sketcher.Constraint("DistanceX", 1, 2, 1, 1, 3.1754),
    Sketcher.Constraint("DistanceX", 20, 2, 6, 2, 35.237),
    Sketcher.Constraint("DistanceY", 12, 3, -1, 1, 26.0756),
    Sketcher.Constraint("DistanceX", -1, 1, 0, 2, 24.5877),
])
pocket3 = body.newObject("PartDesign::Pocket", "Pocket002")
pocket3.Profile = sketch9
pocket3.Length = 2
pocket3.Reversed = True

sketch10 = body.newObject("Sketcher::SketchObject", "Sketch009")
sketch10.AttachmentSupport = (doc.getObject("YZ_Plane"), [""])
sketch10.MapMode = "FlatFace"
sketch10.AttachmentOffset = App.Placement(App.Vector(0, 0, -12), App.Rotation())
sketch10.addGeometry([
    Part.Circle(App.Vector(32.5, 1.9, 0), App.Vector(0, 0, 1), 0.5),
    Part.Circle(App.Vector(61.5, 1.9, 0), App.Vector(0, 0, 1), 0.5),
], False)
sketch10.addConstraint([
    Sketcher.Constraint("Equal", 0, 1),
    Sketcher.Constraint("Horizontal", 0, 3, 1, 3),
    Sketcher.Constraint("Diameter", 0, 1.0),
    Sketcher.Constraint("DistanceX", 0, 3, 1, 3, 29.0),
    Sketcher.Constraint("DistanceX", -1, 1, 0, 3, 32.5),
    Sketcher.Constraint("DistanceY", -1, 1, 0, 3, 1.9444),
])
pocket4 = body.newObject("PartDesign::Pocket", "Pocket003")
pocket4.Profile = sketch10
pocket4.Length = 4
pocket4.Reversed = True

doc.recompute()
